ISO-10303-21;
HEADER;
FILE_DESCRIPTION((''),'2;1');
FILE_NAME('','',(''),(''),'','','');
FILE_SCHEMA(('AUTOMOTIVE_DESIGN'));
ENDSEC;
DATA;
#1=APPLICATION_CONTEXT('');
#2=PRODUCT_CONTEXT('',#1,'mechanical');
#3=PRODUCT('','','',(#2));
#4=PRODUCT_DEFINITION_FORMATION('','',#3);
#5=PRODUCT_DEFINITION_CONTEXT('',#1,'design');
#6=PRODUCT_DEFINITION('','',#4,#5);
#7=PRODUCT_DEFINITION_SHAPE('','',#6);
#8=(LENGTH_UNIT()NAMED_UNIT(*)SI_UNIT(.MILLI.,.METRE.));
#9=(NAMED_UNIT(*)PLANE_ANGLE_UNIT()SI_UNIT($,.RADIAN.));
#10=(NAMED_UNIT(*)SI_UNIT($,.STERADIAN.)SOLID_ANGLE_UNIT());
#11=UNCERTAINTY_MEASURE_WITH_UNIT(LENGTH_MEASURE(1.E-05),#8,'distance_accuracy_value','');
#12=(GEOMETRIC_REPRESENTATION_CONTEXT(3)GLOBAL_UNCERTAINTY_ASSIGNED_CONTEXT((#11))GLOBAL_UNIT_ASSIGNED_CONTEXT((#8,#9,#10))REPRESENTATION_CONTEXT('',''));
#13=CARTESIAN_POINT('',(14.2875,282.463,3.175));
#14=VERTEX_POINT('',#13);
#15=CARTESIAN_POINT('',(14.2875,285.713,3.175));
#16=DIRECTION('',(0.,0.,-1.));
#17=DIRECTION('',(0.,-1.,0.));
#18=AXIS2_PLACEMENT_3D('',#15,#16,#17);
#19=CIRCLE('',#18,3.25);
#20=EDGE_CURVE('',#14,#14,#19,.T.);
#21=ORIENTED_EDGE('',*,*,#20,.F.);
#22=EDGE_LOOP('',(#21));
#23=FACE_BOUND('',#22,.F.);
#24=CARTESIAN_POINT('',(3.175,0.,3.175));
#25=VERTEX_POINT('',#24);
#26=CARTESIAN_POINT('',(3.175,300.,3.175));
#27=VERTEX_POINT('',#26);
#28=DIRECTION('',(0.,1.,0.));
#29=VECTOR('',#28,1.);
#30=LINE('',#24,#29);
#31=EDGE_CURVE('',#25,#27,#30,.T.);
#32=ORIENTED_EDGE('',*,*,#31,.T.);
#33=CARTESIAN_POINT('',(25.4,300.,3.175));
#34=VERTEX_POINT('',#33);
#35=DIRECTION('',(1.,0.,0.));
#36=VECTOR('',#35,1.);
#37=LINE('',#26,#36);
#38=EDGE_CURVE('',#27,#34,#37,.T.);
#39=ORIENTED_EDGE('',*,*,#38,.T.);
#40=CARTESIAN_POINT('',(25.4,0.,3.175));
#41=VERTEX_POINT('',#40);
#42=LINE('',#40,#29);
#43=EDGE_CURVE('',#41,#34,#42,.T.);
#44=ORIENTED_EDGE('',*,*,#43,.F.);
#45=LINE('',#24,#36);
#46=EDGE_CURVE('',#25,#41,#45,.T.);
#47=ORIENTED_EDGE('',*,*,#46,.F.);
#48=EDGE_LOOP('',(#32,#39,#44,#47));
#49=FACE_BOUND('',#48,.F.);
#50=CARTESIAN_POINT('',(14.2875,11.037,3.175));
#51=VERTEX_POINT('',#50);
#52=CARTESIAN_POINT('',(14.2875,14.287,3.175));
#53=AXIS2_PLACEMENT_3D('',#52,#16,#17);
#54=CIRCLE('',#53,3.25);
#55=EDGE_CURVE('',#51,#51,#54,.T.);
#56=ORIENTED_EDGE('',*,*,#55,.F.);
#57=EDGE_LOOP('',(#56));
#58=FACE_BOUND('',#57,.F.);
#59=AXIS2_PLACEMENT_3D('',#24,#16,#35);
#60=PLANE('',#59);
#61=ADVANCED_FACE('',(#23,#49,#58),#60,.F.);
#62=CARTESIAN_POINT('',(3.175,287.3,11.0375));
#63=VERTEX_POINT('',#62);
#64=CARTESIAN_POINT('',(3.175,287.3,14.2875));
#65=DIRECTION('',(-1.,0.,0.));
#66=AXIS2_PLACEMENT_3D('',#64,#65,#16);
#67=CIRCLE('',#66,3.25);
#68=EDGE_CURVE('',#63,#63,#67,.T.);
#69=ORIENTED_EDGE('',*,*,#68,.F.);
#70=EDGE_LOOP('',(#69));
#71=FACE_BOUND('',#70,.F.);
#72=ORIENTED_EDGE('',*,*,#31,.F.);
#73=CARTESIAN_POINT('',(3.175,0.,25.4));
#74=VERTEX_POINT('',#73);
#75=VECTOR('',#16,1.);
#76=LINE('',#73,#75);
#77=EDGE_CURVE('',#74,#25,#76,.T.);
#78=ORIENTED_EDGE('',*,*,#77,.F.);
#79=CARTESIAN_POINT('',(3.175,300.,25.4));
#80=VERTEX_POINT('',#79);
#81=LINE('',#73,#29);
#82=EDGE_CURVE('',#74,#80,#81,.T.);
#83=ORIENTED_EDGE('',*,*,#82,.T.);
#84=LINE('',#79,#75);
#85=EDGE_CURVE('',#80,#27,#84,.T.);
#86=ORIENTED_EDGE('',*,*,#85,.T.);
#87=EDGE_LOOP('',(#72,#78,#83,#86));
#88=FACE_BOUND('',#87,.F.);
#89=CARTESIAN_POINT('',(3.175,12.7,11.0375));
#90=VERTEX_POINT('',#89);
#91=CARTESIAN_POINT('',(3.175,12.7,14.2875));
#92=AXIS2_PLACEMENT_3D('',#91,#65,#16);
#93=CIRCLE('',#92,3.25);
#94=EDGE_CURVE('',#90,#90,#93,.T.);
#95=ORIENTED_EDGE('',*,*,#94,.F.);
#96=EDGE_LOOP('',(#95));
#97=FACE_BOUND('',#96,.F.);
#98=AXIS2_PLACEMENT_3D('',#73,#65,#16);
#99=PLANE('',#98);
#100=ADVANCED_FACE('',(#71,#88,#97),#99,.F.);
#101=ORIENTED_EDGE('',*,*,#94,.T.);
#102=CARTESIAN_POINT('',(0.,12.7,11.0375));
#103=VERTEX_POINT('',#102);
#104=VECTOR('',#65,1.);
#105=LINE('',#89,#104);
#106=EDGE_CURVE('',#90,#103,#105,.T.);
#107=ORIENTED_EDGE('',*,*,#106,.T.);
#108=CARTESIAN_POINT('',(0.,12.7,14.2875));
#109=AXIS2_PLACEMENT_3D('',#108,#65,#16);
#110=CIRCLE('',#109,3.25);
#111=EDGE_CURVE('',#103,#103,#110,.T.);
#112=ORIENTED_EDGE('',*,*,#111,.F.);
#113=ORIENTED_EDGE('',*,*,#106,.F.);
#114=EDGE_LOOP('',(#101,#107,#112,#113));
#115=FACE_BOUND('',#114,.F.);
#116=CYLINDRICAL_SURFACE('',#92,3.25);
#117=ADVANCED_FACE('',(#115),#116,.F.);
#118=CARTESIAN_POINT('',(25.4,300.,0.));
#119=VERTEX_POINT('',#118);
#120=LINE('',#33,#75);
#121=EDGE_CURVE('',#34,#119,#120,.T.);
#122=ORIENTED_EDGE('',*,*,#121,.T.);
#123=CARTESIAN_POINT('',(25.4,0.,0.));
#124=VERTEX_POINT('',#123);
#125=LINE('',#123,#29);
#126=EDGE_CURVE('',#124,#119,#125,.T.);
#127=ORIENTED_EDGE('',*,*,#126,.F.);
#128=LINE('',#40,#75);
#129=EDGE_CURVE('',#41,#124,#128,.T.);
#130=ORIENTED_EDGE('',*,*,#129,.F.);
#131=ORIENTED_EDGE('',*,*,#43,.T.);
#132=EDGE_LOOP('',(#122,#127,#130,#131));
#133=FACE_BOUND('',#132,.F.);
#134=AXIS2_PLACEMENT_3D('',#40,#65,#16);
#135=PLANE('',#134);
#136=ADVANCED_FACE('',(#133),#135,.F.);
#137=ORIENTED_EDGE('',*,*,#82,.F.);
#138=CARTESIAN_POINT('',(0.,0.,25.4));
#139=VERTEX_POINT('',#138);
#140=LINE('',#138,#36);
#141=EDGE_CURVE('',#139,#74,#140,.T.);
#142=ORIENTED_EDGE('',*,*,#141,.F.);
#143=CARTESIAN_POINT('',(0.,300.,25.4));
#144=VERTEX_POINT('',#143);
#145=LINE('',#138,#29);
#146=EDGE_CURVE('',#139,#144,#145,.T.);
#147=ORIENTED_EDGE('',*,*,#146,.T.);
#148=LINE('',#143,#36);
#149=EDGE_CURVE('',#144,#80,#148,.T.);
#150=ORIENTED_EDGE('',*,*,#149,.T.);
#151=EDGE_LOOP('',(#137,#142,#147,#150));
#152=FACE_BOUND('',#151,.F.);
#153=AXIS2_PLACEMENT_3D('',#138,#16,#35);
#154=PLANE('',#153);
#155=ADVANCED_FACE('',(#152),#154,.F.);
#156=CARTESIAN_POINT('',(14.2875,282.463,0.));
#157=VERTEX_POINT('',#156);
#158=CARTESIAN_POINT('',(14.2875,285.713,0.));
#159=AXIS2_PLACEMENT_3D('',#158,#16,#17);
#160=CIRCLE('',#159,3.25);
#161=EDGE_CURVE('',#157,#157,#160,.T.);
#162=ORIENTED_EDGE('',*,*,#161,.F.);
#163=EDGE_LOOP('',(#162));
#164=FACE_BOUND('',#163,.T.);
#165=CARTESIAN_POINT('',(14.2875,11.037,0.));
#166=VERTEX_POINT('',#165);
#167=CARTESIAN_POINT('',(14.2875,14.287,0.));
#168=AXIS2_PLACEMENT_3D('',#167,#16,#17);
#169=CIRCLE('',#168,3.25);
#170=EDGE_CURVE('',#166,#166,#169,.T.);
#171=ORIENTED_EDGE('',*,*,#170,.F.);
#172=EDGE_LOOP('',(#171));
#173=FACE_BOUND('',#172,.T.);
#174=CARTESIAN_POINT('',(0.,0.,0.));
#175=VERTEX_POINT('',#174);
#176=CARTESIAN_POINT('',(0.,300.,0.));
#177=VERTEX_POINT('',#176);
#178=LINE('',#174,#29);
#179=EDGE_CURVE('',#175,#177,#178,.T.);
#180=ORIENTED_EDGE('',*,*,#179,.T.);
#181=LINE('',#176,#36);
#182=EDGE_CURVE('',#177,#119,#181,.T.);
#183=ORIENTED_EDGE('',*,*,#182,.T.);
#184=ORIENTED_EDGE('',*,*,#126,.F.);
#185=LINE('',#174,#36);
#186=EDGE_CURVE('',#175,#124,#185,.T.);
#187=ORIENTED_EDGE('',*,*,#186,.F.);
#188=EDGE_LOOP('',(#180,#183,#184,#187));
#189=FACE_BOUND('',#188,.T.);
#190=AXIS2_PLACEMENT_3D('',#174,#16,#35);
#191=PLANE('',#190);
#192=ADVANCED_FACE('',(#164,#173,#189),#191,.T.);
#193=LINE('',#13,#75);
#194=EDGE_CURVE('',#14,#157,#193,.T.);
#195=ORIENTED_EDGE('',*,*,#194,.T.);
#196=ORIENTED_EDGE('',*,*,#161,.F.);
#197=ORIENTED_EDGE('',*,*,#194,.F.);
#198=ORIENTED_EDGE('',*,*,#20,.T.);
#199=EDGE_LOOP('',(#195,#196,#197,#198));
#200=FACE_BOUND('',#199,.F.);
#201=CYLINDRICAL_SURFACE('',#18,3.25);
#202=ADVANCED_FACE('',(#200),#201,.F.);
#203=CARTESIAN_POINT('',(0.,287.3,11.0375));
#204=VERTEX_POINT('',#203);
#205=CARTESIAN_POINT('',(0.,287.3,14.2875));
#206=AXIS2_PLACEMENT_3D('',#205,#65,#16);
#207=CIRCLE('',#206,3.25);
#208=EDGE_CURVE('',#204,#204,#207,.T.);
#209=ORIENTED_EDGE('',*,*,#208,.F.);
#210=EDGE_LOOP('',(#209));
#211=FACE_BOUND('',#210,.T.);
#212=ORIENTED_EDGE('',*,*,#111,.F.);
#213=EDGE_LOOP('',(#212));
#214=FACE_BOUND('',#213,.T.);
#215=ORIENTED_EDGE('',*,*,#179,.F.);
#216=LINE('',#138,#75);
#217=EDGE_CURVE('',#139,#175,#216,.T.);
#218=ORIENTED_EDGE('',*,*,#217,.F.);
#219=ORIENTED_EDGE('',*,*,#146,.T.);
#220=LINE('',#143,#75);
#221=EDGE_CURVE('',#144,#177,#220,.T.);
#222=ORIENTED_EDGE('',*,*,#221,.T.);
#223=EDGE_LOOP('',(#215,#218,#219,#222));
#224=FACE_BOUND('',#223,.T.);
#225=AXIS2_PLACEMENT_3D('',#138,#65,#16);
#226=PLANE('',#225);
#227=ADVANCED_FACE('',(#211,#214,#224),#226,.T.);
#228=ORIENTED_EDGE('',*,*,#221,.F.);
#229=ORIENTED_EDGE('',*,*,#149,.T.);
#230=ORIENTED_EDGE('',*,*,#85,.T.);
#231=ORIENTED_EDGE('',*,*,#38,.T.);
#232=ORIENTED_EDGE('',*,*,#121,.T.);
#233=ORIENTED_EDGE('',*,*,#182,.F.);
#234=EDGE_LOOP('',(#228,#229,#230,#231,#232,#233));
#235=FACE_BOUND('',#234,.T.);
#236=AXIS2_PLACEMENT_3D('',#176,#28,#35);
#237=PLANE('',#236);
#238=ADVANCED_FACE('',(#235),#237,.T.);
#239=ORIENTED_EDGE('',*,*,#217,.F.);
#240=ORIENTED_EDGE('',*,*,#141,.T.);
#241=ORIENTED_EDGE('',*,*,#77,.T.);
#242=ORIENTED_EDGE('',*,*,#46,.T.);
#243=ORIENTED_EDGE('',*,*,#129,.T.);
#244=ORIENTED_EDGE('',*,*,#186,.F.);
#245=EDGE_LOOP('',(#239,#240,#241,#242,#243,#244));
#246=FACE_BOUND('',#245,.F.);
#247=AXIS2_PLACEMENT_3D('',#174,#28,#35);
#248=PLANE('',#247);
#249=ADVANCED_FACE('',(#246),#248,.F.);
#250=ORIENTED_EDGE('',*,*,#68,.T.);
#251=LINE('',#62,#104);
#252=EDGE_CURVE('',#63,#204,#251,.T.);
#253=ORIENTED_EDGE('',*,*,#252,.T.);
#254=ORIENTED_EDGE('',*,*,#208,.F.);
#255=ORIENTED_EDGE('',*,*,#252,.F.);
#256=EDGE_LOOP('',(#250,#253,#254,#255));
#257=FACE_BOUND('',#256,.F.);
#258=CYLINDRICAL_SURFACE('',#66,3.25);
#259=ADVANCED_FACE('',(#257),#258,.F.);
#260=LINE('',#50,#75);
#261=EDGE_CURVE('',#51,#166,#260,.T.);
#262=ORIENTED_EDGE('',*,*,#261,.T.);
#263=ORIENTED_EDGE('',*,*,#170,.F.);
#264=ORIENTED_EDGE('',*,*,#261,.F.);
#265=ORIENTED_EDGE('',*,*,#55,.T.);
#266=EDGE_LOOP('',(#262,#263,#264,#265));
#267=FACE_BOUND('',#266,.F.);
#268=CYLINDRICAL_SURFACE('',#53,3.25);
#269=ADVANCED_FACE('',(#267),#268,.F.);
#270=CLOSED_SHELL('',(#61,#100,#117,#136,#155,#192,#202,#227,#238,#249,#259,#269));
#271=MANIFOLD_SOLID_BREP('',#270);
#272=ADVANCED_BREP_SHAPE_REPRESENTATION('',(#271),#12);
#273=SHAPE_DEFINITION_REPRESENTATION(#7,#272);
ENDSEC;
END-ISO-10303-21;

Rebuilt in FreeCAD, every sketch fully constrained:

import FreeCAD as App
import Part
import Sketcher

V = App.Vector
Q = App.Units.Quantity


def add_polygon(sketch, points):
    """Adds a closed chain of lines whose ends are joined by coincident constraints."""
    first, n = sketch.GeometryCount, len(points)
    for a, b in zip(points, points[1:] + points[:1]):
        sketch.addGeometry(Part.LineSegment(App.Vector(*a, 0), App.Vector(*b, 0)), False)
    for i in range(n):
        sketch.addConstraint(Sketcher.Constraint("Coincident", first + i, 2, first + (i + 1) % n, 1))

doc = App.newDocument("Part")
params = doc.addObject("Spreadsheet::Sheet", "Params")
for row, (alias, value) in enumerate([
    ("sketch1_width", "1 in"),
    ("sketch1_width2", "0.125 in"),
    ("pad1_length", "300 mm"),
    ("hole_diameter", "0.2559055 in"),
    ("hole2_diameter", "0.2559055 in"),
], start=1):
    params.set(f"A{row}", alias)
    params.set(f"B{row}", "=" + value)
    params.setAlias(f"B{row}", alias)

body = doc.addObject("PartDesign::Body", "Body")

sketch1 = body.newObject("Sketcher::SketchObject", "Sketch")
sketch1.AttachmentSupport = (doc.getObject("XZ_Plane"), [""])
sketch1.MapMode = "FlatFace"
add_polygon(sketch1, [(0, 0), (0, 25.4), (3.175, 25.4), (3.175, 3.175), (25.4, 3.175), (25.4, 0)])
sketch1.addConstraint(Sketcher.Constraint("Vertical", 0))
sketch1.addConstraint(Sketcher.Constraint("Horizontal", 1))
sketch1.addConstraint(Sketcher.Constraint("Vertical", 2))
sketch1.addConstraint(Sketcher.Constraint("Horizontal", 3))
sketch1.addConstraint(Sketcher.Constraint("Vertical", 4))
sketch1.addConstraint(Sketcher.Constraint("Horizontal", 5))
sketch1.addConstraint(Sketcher.Constraint("Coincident", 5, 2, -1, 1))
sketch1.addConstraint(Sketcher.Constraint("Equal", 5, 0))
sketch1.addConstraint(Sketcher.Constraint("Equal", 3, 2))
sketch1.addConstraint(Sketcher.Constraint("DistanceX", 5, 2, 5, 1, Q("1 in")))
sketch1.addConstraint(Sketcher.Constraint("DistanceX", 1, 1, 1, 2, Q("0.125 in")))
sketch1.setExpression("Constraints[15]", "Params.sketch1_width")
sketch1.setExpression("Constraints[16]", "Params.sketch1_width2")
pad1 = body.newObject("PartDesign::Pad", "Pad")
pad1.Profile = sketch1
pad1.setExpression("Length", "Params.pad1_length")
pad1.Reversed = True

sketch2 = body.newObject("Sketcher::SketchObject", "Sketch001")
sketch2.AttachmentSupport = (doc.getObject("YZ_Plane"), [""])
sketch2.MapMode = "FlatFace"
sketch2.AttachmentOffset = App.Placement(V(0, 0, 0.125 * 25.4), App.Rotation())
sketch2.addGeometry(Part.Circle(V(12.7, 14.2875, 0), V(0, 0, 1), 3.25), False)
sketch2.addGeometry(Part.Circle(V(287.3, 14.2875, 0), V(0, 0, 1), 3.25), False)
sketch2.addConstraint(Sketcher.Constraint("Equal", 0, 1))
sketch2.addConstraint(Sketcher.Constraint("Horizontal", 0, 3, 1, 3))
sketch2.addConstraint(Sketcher.Constraint("Diameter", 0, Q("0.2559 in")))
sketch2.addConstraint(Sketcher.Constraint("DistanceX", -1, 1, 0, 3, Q("0.5 in")))
sketch2.addConstraint(Sketcher.Constraint("DistanceY", -1, 1, 0, 3, Q("0.5625 in")))
sketch2.addConstraint(Sketcher.Constraint("DistanceX", -1, 1, 1, 3, 287.3))
doc.recompute()
hole = body.newObject("PartDesign::Hole", "Hole")
hole.Profile = sketch2
hole.ThreadType = "None"
hole.setExpression("Diameter", "Params.hole_diameter")
hole.DepthType = "ThroughAll"

sketch3 = body.newObject("Sketcher::SketchObject", "Sketch002")
sketch3.AttachmentSupport = (doc.getObject("XY_Plane"), [""])
sketch3.MapMode = "FlatFace"
sketch3.AttachmentOffset = App.Placement(V(0, 0, 0.125 * 25.4), App.Rotation())
sketch3.addGeometry(Part.Circle(V(14.2875, 14.287, 0), V(0, 0, 1), 3.25), False)
sketch3.addGeometry(Part.Circle(V(14.2875, 285.713, 0), V(0, 0, 1), 3.25), False)
sketch3.addConstraint(Sketcher.Constraint("Equal", 0, 1))
sketch3.addConstraint(Sketcher.Constraint("Vertical", 0, 3, 1, 3))
sketch3.addConstraint(Sketcher.Constraint("Diameter", 0, Q("0.2559 in")))
sketch3.addConstraint(Sketcher.Constraint("DistanceX", -1, 1, 0, 3, Q("0.5625 in")))
sketch3.addConstraint(Sketcher.Constraint("DistanceY", -1, 1, 0, 3, 14.287))
sketch3.addConstraint(Sketcher.Constraint("DistanceY", -1, 1, 1, 3, 285.713))
doc.recompute()
hole2 = body.newObject("PartDesign::Hole", "Hole001")
hole2.Profile = sketch3
hole2.ThreadType = "None"
hole2.setExpression("Diameter", "Params.hole2_diameter")
hole2.DepthType = "ThroughAll"

doc.recompute()
